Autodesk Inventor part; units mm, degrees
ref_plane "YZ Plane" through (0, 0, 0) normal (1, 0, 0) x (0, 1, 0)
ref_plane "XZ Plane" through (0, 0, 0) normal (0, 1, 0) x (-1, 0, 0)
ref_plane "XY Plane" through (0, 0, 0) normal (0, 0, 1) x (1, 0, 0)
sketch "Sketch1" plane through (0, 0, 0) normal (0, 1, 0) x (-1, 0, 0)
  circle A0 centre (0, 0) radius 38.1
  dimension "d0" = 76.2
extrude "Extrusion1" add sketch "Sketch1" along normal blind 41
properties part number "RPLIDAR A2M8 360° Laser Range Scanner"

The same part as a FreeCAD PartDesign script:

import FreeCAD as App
import Part
import Sketcher

V = App.Vector

doc = App.newDocument("Part")
body = doc.addObject("PartDesign::Body", "Body")

# Sketch on XZ plane
sketch1 = doc.addObject("Sketcher::SketchObject", "Sketch")
body.addObject(sketch1)
sketch1.AttachmentSupport = (doc.XZ_Plane, [""])
sketch1.MapMode = "FlatFace"
sketch1.addGeometry(Part.Circle(V(0, 0, 0), V(0, 0, 1), 38), False)
sketch1.addConstraint([
    Sketcher.Constraint("Coincident", 0, 3, -1, 1),
    Sketcher.Constraint("Diameter", 0, 76.2),
])
pad1 = doc.addObject("PartDesign::Pad", "Pad")
body.addObject(pad1)
pad1.Profile = sketch1
pad1.Length = 41
pad1.Reversed = True

doc.recompute()
